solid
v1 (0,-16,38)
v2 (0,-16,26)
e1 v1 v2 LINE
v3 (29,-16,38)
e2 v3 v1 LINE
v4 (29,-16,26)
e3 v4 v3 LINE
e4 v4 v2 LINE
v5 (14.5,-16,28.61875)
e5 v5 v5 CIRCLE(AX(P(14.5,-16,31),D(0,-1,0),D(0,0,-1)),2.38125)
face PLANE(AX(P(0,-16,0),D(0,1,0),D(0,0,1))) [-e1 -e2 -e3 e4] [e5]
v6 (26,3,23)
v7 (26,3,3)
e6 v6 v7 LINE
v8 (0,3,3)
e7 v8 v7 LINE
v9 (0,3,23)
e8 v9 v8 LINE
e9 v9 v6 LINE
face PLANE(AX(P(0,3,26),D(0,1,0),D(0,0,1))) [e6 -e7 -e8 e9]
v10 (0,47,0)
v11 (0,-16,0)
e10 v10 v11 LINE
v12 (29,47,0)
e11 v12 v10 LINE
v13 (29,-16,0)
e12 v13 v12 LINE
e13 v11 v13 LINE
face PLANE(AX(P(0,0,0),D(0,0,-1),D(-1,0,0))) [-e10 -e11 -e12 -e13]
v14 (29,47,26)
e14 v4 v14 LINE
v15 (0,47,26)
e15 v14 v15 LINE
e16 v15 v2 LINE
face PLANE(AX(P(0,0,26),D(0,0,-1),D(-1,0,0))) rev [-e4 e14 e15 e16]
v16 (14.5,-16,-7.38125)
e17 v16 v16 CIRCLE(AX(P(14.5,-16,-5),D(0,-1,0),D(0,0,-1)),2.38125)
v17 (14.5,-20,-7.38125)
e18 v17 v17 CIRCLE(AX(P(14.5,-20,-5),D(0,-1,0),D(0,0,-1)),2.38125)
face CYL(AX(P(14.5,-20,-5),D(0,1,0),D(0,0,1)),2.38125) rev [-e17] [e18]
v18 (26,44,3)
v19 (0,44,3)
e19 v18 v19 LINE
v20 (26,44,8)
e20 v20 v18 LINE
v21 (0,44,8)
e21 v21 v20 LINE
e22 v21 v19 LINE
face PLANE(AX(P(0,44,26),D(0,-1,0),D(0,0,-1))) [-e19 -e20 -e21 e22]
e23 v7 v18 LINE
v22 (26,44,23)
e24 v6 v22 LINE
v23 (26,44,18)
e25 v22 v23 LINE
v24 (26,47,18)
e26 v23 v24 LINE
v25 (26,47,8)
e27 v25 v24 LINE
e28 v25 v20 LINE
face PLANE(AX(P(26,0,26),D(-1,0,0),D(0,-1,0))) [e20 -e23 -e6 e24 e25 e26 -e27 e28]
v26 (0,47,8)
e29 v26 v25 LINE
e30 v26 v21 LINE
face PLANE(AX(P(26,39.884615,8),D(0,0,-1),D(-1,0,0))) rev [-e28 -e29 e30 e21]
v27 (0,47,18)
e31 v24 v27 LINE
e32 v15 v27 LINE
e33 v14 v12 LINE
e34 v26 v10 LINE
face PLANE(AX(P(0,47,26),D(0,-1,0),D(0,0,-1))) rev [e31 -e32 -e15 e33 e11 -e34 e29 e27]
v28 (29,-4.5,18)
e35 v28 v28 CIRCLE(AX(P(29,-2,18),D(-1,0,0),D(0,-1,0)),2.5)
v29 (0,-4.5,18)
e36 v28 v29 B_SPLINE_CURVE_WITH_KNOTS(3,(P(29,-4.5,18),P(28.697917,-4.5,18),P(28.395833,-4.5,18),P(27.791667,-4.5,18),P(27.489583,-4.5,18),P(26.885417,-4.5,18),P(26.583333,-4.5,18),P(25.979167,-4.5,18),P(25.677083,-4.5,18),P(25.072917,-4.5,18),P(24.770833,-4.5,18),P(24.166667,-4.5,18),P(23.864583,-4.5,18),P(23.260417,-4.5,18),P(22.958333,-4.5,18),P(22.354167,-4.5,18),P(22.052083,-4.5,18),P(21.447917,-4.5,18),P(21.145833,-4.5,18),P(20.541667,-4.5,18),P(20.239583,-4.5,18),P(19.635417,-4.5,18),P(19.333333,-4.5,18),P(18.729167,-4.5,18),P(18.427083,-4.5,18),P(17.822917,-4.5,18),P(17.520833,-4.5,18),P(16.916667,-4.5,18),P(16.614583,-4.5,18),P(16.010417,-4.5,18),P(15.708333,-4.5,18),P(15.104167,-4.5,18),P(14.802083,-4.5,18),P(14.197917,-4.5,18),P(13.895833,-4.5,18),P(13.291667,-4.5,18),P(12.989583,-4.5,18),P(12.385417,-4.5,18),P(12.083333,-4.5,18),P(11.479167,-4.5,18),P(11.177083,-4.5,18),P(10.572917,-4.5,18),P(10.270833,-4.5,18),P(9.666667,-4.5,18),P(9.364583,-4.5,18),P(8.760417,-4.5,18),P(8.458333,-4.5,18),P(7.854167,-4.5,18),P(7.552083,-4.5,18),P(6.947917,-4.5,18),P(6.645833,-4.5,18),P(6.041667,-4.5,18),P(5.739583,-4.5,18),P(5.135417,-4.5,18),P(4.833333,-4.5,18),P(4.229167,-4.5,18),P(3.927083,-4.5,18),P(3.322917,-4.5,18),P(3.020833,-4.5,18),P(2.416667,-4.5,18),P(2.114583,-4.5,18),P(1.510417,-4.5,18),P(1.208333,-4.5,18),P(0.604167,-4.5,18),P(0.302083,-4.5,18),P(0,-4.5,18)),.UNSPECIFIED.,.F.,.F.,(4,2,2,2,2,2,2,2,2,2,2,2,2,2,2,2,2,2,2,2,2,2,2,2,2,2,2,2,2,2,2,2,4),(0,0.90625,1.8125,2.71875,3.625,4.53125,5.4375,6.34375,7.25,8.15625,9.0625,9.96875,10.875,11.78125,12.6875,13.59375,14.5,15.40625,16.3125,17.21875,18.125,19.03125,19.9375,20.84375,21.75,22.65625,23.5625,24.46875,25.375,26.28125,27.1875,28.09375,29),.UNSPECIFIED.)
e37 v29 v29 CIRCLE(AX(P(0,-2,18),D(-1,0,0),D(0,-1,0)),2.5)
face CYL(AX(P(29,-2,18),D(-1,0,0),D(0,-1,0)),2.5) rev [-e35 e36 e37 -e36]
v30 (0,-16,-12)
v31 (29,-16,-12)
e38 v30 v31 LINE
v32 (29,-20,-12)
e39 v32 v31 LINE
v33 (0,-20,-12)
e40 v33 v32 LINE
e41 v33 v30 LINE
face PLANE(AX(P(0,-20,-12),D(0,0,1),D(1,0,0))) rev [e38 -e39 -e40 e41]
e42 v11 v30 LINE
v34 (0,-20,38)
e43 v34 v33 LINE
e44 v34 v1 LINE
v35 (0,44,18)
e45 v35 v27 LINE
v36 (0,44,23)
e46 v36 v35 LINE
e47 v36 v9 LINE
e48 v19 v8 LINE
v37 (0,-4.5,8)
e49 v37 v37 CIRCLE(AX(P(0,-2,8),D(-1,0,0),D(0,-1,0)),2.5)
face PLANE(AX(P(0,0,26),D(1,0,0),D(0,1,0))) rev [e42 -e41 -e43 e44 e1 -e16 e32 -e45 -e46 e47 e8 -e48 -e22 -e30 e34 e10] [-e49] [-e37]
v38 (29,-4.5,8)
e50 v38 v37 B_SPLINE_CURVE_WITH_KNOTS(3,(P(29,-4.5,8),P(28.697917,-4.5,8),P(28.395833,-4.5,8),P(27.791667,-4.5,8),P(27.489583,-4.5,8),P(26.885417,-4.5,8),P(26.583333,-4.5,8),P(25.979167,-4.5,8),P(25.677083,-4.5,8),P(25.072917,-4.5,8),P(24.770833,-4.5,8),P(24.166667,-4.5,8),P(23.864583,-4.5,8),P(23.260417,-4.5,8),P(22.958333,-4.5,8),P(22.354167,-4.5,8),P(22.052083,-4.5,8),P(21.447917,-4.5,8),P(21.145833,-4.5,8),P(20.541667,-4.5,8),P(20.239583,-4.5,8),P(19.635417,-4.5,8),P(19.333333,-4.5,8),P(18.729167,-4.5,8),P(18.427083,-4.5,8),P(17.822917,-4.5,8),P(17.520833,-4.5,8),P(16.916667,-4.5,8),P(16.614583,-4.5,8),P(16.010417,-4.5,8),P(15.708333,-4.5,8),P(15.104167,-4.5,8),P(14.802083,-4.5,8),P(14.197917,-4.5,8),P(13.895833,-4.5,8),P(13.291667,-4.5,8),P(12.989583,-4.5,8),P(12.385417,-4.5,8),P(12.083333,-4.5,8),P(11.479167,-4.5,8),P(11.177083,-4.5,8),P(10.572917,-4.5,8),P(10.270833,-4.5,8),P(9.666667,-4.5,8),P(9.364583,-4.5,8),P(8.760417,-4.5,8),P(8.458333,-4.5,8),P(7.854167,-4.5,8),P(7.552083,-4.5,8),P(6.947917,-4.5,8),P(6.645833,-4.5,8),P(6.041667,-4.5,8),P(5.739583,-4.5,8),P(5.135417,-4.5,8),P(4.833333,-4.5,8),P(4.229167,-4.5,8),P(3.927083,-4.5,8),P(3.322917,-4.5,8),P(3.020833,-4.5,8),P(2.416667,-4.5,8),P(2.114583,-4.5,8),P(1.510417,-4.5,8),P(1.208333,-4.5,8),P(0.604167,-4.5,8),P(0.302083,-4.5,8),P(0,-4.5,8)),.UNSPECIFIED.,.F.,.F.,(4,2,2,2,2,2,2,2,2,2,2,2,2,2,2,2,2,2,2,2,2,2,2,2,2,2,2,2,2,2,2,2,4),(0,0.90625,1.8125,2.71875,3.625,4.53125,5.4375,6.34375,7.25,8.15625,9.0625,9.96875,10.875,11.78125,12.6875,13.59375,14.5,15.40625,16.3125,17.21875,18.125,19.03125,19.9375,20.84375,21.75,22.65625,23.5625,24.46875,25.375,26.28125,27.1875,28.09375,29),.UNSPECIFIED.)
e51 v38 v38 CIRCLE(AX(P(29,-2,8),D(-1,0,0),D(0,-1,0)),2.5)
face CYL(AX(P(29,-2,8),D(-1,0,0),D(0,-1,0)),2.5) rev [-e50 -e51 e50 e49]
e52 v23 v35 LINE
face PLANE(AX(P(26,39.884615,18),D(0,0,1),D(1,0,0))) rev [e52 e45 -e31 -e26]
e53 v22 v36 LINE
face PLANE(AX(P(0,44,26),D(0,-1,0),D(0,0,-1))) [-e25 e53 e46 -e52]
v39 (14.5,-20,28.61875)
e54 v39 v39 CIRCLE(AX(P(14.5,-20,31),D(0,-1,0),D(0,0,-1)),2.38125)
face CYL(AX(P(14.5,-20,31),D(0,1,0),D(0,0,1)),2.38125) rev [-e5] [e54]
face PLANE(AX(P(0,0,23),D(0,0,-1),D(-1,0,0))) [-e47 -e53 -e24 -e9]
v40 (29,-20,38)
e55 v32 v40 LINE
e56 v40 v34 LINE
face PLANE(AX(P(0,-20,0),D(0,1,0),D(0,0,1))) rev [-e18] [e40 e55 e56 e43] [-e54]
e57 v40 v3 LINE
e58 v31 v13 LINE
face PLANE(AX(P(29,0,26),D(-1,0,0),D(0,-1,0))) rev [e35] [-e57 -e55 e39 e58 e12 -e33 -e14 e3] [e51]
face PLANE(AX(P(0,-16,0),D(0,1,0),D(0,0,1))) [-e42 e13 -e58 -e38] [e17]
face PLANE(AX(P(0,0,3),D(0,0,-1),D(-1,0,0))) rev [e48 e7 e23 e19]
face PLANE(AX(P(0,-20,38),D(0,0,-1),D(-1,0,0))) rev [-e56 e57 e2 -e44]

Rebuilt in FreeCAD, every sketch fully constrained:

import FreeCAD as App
import Part
import Sketcher

V = App.Vector
Q = App.Units.Quantity


def faces_at(feature, points):
    """Names of the faces that lie closest to the given points."""
    faces = feature.Shape.Faces
    near = lambda p: min(range(len(faces)), key=lambda i: faces[i].distToShape(Part.Vertex(*p))[0])
    return sorted({f"Face{near(p) + 1}" for p in points})

doc = App.newDocument("Part")
body = doc.addObject("PartDesign::Body", "Body")

# Sketch on XY plane
sketch1 = body.newObject("Sketcher::SketchObject", "Sketch")
sketch1.AttachmentSupport = (doc.getObject("XY_Plane"), [""])
sketch1.MapMode = "FlatFace"
sketch1.addGeometry([
    Part.LineSegment(V(0, 47, 0), V(0, 0, 0)),
    Part.LineSegment(V(0, 0, 0), V(29, 0, 0)),
    Part.LineSegment(V(29, 0, 0), V(29, 47, 0)),
    Part.LineSegment(V(29, 47, 0), V(0, 47, 0)),
], False)
sketch1.addConstraint([
    Sketcher.Constraint("Coincident", 0, 2, 1, 1),
    Sketcher.Constraint("Coincident", 1, 2, 2, 1),
    Sketcher.Constraint("Coincident", 2, 2, 3, 1),
    Sketcher.Constraint("Coincident", 3, 2, 0, 1),
    Sketcher.Constraint("Vertical", 0),
    Sketcher.Constraint("Horizontal", 1),
    Sketcher.Constraint("Vertical", 2),
    Sketcher.Constraint("Horizontal", 3),
    Sketcher.Constraint("Coincident", 0, 2, -1, 1),
    Sketcher.Constraint("DistanceX", 1, 1, 1, 2, Q("29 mm")),
    Sketcher.Constraint("DistanceY", 0, 2, 0, 1, Q("47 mm")),
])
pad1 = body.newObject("PartDesign::Pad", "Pad")
pad1.Profile = sketch1
pad1.Length = 26
doc.recompute()

thickness = body.newObject("PartDesign::Thickness", "Thickness")
thickness.Base = (pad1, faces_at(pad1, [(0, 23.5, 13)]))
thickness.Value = 3
thickness.Reversed = True
thickness.Join = "Intersection"

# Sketch on YZ plane
sketch2 = body.newObject("Sketcher::SketchObject", "Sketch001")
sketch2.AttachmentSupport = (doc.getObject("YZ_Plane"), [""])
sketch2.MapMode = "FlatFace"
sketch2.addGeometry([
    Part.LineSegment(V(48.115385, 8, 0), V(39.884615, 8, 0)),
    Part.LineSegment(V(39.884615, 8, 0), V(39.884615, 18, 0)),
    Part.LineSegment(V(39.884615, 18, 0), V(48.115385, 18, 0)),
    Part.LineSegment(V(48.115385, 18, 0), V(48.115385, 8, 0)),
], False)
sketch2.addConstraint([
    Sketcher.Constraint("Coincident", 0, 2, 1, 1),
    Sketcher.Constraint("Coincident", 1, 2, 2, 1),
    Sketcher.Constraint("Coincident", 2, 2, 3, 1),
    Sketcher.Constraint("Coincident", 3, 2, 0, 1),
    Sketcher.Constraint("Horizontal", 0),
    Sketcher.Constraint("Vertical", 1),
    Sketcher.Constraint("Horizontal", 2),
    Sketcher.Constraint("Vertical", 3),
    Sketcher.Constraint("DistanceY", 1, 1, 1, 2, Q("10 mm")),
    Sketcher.Constraint("DistanceY", -1, 1, 0, 2, Q("8 mm")),
    Sketcher.Constraint("DistanceX", 0, 2, 0, 1, Q("8.230769 mm")),
    Sketcher.Constraint("DistanceX", -1, 1, 0, 2, Q("39.884615 mm")),
])
pocket1 = body.newObject("PartDesign::Pocket", "Pocket")
pocket1.Profile = sketch2
pocket1.Length = 26
pocket1.Reversed = True

# Sketch on XZ plane
sketch3 = body.newObject("Sketcher::SketchObject", "Sketch002")
sketch3.AttachmentSupport = (doc.getObject("XZ_Plane"), [""])
sketch3.MapMode = "FlatFace"
sketch3.addGeometry([
    Part.LineSegment(V(0, 26, 0), V(0, 0, 0)),
    Part.LineSegment(V(0, 0, 0), V(29, 0, 0)),
    Part.LineSegment(V(29, 0, 0), V(29, 26, 0)),
    Part.LineSegment(V(29, 26, 0), V(0, 26, 0)),
], False)
sketch3.addConstraint([
    Sketcher.Constraint("Coincident", 0, 2, 1, 1),
    Sketcher.Constraint("Coincident", 1, 2, 2, 1),
    Sketcher.Constraint("Coincident", 2, 2, 3, 1),
    Sketcher.Constraint("Coincident", 3, 2, 0, 1),
    Sketcher.Constraint("Vertical", 0),
    Sketcher.Constraint("Horizontal", 1),
    Sketcher.Constraint("Vertical", 2),
    Sketcher.Constraint("Horizontal", 3),
    Sketcher.Constraint("Coincident", 0, 2, -1, 1),
    Sketcher.Constraint("DistanceX", 1, 1, 1, 2, Q("29 mm")),
    Sketcher.Constraint("DistanceY", 0, 2, 0, 1, Q("26 mm")),
])
pad2 = body.newObject("PartDesign::Pad", "Pad001")
pad2.Profile = sketch3
pad2.Length = 16

# Sketch on YZ plane
sketch4 = body.newObject("Sketcher::SketchObject", "Sketch003")
sketch4.AttachmentSupport = (doc.getObject("YZ_Plane"), [""])
sketch4.MapMode = "FlatFace"
sketch4.addGeometry([
    Part.Circle(V(-2, 8, 0), V(0, 0, 1), 2.5),
    Part.Circle(V(-2, 18, 0), V(0, 0, 1), 2.5),
], False)
sketch4.addConstraint([
    Sketcher.Constraint("Equal", 0, 1),
    Sketcher.Constraint("Vertical", 0, 3, 1, 3),
    Sketcher.Constraint("Diameter", 0, Q("5 mm")),
    Sketcher.Constraint("DistanceX", 0, 3, -1, 1, Q("2 mm")),
    Sketcher.Constraint("DistanceY", -1, 1, 0, 3, Q("8 mm")),
    Sketcher.Constraint("DistanceY", -1, 1, 1, 3, Q("18 mm")),
])
pocket2 = body.newObject("PartDesign::Pocket", "Pocket001")
pocket2.Profile = sketch4
pocket2.Type = "ThroughAll"
pocket2.Reversed = True

# Sketch on XZ plane
sketch5 = body.newObject("Sketcher::SketchObject", "Sketch004")
sketch5.AttachmentSupport = (doc.getObject("XZ_Plane"), [""])
sketch5.MapMode = "FlatFace"
sketch5.AttachmentOffset = App.Placement(V(0, 0, 16), App.Rotation())
sketch5.addGeometry([
    Part.LineSegment(V(0, 38, 0), V(0, -12, 0)),  # 0
    Part.LineSegment(V(0, -12, 0), V(29, -12, 0)),  # 1
    Part.LineSegment(V(29, -12, 0), V(29, 38, 0)),  # 2
    Part.LineSegment(V(29, 38, 0), V(0, 38, 0)),  # 3
    Part.Circle(V(14.5, -5, 0), V(0, 0, 1), 2.38125),  # 4
    Part.Circle(V(14.5, 31, 0), V(0, 0, 1), 2.38125),  # 5
], False)
sketch5.addConstraint([
    Sketcher.Constraint("Coincident", 0, 2, 1, 1),
    Sketcher.Constraint("Coincident", 1, 2, 2, 1),
    Sketcher.Constraint("Coincident", 2, 2, 3, 1),
    Sketcher.Constraint("Coincident", 3, 2, 0, 1),
    Sketcher.Constraint("Vertical", 0),
    Sketcher.Constraint("Horizontal", 1),
    Sketcher.Constraint("Vertical", 2),
    Sketcher.Constraint("Horizontal", 3),
    Sketcher.Constraint("Equal", 4, 5),
    Sketcher.Constraint("PointOnObject", 0, 2, -2),
    Sketcher.Constraint("Vertical", 4, 3, 5, 3),
    Sketcher.Constraint("DistanceX", 1, 1, 1, 2, Q("29 mm")),
    Sketcher.Constraint("DistanceY", 0, 2, 0, 1, Q("50 mm")),
    Sketcher.Constraint("DistanceY", 4, 3, -1, 1, Q("5 mm")),
    Sketcher.Constraint("DistanceY", -1, 1, 5, 3, Q("31 mm")),
    Sketcher.Constraint("DistanceY", 0, 2, -1, 1, Q("12 mm")),
    Sketcher.Constraint("Diameter", 4, Q("4.7625 mm")),
    Sketcher.Constraint("DistanceX", -1, 1, 4, 3, Q("14.5 mm")),
])
pad3 = body.newObject("PartDesign::Pad", "Pad002")
pad3.Profile = sketch5
pad3.Length = 4

doc.recompute()
